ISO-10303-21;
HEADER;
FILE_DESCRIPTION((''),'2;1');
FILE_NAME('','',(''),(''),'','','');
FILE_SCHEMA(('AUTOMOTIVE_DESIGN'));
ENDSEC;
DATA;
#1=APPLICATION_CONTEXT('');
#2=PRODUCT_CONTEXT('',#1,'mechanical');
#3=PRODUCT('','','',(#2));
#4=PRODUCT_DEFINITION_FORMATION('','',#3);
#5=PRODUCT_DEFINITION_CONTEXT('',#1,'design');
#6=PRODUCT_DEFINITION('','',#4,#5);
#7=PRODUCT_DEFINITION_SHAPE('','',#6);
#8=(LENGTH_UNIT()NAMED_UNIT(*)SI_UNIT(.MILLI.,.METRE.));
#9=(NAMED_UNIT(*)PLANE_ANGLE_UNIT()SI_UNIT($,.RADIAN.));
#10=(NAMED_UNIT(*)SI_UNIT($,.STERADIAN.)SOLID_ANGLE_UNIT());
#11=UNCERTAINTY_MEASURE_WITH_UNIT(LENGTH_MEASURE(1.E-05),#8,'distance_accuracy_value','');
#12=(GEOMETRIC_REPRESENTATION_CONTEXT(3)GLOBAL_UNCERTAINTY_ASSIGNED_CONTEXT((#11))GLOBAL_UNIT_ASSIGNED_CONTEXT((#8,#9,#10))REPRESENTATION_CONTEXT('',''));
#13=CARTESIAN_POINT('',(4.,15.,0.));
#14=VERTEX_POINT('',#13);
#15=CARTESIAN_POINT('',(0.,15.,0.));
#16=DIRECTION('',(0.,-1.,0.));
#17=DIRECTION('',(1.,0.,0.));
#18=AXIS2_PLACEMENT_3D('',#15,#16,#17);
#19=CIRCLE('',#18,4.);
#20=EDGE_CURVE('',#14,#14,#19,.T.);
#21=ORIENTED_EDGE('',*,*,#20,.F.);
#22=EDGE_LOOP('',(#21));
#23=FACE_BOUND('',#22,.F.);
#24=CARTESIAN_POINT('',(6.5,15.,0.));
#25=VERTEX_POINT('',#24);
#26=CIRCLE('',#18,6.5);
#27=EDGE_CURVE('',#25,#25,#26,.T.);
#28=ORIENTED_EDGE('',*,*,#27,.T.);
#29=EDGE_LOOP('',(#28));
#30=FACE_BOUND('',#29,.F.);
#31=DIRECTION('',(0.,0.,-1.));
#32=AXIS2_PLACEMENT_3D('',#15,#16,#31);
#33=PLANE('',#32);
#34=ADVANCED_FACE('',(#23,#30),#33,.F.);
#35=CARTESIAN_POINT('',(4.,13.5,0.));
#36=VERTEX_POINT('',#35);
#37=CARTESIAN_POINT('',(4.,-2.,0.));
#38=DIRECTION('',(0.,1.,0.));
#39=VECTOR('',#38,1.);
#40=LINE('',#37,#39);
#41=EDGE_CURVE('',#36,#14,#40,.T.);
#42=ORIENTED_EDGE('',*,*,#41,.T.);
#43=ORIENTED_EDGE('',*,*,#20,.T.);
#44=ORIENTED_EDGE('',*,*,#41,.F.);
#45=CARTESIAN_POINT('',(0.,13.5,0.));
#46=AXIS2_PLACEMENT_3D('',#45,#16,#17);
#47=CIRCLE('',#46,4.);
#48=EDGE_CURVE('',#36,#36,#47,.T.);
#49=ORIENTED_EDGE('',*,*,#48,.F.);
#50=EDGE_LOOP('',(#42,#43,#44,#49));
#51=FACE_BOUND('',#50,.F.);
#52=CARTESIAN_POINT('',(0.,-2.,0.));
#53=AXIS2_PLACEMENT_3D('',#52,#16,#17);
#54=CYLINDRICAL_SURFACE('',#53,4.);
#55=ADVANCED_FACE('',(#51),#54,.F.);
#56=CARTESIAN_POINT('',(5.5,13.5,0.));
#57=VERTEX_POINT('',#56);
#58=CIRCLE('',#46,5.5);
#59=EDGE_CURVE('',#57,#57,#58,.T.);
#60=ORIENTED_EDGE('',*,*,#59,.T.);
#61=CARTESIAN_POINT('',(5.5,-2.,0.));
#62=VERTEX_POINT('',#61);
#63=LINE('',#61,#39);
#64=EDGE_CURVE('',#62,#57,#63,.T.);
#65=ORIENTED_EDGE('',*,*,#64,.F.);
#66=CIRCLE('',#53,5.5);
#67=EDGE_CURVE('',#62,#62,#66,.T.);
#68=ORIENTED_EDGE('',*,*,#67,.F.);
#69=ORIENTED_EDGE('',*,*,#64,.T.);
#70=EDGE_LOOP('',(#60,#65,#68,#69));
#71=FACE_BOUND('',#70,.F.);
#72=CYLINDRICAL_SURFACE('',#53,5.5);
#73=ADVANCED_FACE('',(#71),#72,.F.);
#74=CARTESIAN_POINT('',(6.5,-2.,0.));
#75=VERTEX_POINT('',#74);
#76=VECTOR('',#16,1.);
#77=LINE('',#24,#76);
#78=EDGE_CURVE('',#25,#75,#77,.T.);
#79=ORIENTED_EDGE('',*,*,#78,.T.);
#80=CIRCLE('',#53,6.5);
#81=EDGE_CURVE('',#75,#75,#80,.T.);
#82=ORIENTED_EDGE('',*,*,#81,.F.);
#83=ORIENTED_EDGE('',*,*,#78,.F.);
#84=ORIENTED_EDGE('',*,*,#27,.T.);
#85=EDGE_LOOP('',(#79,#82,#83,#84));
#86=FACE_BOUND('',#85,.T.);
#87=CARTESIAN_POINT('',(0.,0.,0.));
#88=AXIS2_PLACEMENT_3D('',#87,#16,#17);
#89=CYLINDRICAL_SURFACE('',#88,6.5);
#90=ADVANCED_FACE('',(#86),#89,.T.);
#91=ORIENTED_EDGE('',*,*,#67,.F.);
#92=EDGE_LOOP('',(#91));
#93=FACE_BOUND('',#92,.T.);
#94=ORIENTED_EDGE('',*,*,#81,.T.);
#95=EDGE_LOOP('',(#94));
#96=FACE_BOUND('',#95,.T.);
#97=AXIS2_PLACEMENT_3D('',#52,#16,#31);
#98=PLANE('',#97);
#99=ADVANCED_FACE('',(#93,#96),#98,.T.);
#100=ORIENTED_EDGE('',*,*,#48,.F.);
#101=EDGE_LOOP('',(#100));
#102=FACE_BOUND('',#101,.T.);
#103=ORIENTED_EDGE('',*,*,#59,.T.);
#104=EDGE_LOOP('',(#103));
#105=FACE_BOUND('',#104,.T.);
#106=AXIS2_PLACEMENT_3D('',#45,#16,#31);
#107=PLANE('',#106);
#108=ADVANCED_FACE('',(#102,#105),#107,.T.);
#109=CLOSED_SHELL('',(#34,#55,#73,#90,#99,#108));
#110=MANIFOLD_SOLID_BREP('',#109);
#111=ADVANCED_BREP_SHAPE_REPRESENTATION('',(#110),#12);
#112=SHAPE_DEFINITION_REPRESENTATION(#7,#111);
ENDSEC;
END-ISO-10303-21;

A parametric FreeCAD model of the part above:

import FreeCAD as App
import Part
import Sketcher
Q = App.Units.Quantity

doc = App.newDocument("Part")
params = doc.addObject("Spreadsheet::Sheet", "Params")
for row, (alias, value) in enumerate([
    ("sketch1_diameter", "13 mm"),
    ("pad1_length", "15 mm"),
    ("sketch2_diameter", "13 mm"),
    ("pad2_length", "2 mm"),
    ("sketch3_diameter", "8 mm"),
    ("sketch4_diameter", "11 mm"),
    ("pocket2_length", "15.5 mm"),
], start=1):
    params.set(f"A{row}", alias)
    params.set(f"B{row}", "=" + value)
    params.setAlias(f"B{row}", alias)

body = doc.addObject("PartDesign::Body", "Body")

# Sketch on XZ plane
sketch1 = body.newObject("Sketcher::SketchObject", "Sketch")
sketch1.AttachmentSupport = (doc.getObject("XZ_Plane"), [""])
sketch1.MapMode = "FlatFace"
sketch1.addGeometry(Part.Circle(App.Vector(0, 0, 0), App.Vector(0, 0, 1), 6), False)
sketch1.addConstraint(Sketcher.Constraint("Coincident", 0, 3, -1, 1))
sketch1.addConstraint(Sketcher.Constraint("Diameter", 0, Q("13 mm")))
sketch1.setExpression("Constraints[1]", "Params.sketch1_diameter")
pad1 = body.newObject("PartDesign::Pad", "Pad")
pad1.Profile = sketch1
pad1.setExpression("Length", "Params.pad1_length")
pad1.Reversed = True

# Sketch on XZ plane
sketch2 = body.newObject("Sketcher::SketchObject", "Sketch001")
sketch2.AttachmentSupport = (doc.getObject("XZ_Plane"), [""])
sketch2.MapMode = "FlatFace"
sketch2.addGeometry(Part.Circle(App.Vector(0, 0, 0), App.Vector(0, 0, 1), 6), False)
sketch2.addConstraint(Sketcher.Constraint("Coincident", 0, 3, -1, 1))
sketch2.addConstraint(Sketcher.Constraint("Diameter", 0, Q("13 mm")))
sketch2.setExpression("Constraints[1]", "Params.sketch2_diameter")
pad2 = body.newObject("PartDesign::Pad", "Pad001")
pad2.Profile = sketch2
pad2.setExpression("Length", "Params.pad2_length")

# Sketch on XZ plane
sketch3 = body.newObject("Sketcher::SketchObject", "Sketch002")
sketch3.AttachmentSupport = (doc.getObject("XZ_Plane"), [""])
sketch3.MapMode = "FlatFace"
sketch3.AttachmentOffset = App.Placement(App.Vector(0, 0, 2), App.Rotation())
sketch3.addGeometry(Part.Circle(App.Vector(0, 0, 0), App.Vector(0, 0, 1), 4), False)
sketch3.addConstraint(Sketcher.Constraint("Coincident", 0, 3, -1, 1))
sketch3.addConstraint(Sketcher.Constraint("Diameter", 0, Q("8 mm")))
sketch3.setExpression("Constraints[1]", "Params.sketch3_diameter")
pocket1 = body.newObject("PartDesign::Pocket", "Pocket")
pocket1.Profile = sketch3
pocket1.Type = "ThroughAll"

# Sketch on XZ plane
sketch4 = body.newObject("Sketcher::SketchObject", "Sketch003")
sketch4.AttachmentSupport = (doc.getObject("XZ_Plane"), [""])
sketch4.MapMode = "FlatFace"
sketch4.AttachmentOffset = App.Placement(App.Vector(0, 0, 2), App.Rotation())
sketch4.addGeometry(Part.Circle(App.Vector(0, 0, 0), App.Vector(0, 0, 1), 6), False)
sketch4.addConstraint(Sketcher.Constraint("Coincident", 0, 3, -1, 1))
sketch4.addConstraint(Sketcher.Constraint("Diameter", 0, Q("11 mm")))
sketch4.setExpression("Constraints[1]", "Params.sketch4_diameter")
pocket2 = body.newObject("PartDesign::Pocket", "Pocket001")
pocket2.Profile = sketch4
pocket2.setExpression("Length", "Params.pocket2_length")

doc.recompute()
